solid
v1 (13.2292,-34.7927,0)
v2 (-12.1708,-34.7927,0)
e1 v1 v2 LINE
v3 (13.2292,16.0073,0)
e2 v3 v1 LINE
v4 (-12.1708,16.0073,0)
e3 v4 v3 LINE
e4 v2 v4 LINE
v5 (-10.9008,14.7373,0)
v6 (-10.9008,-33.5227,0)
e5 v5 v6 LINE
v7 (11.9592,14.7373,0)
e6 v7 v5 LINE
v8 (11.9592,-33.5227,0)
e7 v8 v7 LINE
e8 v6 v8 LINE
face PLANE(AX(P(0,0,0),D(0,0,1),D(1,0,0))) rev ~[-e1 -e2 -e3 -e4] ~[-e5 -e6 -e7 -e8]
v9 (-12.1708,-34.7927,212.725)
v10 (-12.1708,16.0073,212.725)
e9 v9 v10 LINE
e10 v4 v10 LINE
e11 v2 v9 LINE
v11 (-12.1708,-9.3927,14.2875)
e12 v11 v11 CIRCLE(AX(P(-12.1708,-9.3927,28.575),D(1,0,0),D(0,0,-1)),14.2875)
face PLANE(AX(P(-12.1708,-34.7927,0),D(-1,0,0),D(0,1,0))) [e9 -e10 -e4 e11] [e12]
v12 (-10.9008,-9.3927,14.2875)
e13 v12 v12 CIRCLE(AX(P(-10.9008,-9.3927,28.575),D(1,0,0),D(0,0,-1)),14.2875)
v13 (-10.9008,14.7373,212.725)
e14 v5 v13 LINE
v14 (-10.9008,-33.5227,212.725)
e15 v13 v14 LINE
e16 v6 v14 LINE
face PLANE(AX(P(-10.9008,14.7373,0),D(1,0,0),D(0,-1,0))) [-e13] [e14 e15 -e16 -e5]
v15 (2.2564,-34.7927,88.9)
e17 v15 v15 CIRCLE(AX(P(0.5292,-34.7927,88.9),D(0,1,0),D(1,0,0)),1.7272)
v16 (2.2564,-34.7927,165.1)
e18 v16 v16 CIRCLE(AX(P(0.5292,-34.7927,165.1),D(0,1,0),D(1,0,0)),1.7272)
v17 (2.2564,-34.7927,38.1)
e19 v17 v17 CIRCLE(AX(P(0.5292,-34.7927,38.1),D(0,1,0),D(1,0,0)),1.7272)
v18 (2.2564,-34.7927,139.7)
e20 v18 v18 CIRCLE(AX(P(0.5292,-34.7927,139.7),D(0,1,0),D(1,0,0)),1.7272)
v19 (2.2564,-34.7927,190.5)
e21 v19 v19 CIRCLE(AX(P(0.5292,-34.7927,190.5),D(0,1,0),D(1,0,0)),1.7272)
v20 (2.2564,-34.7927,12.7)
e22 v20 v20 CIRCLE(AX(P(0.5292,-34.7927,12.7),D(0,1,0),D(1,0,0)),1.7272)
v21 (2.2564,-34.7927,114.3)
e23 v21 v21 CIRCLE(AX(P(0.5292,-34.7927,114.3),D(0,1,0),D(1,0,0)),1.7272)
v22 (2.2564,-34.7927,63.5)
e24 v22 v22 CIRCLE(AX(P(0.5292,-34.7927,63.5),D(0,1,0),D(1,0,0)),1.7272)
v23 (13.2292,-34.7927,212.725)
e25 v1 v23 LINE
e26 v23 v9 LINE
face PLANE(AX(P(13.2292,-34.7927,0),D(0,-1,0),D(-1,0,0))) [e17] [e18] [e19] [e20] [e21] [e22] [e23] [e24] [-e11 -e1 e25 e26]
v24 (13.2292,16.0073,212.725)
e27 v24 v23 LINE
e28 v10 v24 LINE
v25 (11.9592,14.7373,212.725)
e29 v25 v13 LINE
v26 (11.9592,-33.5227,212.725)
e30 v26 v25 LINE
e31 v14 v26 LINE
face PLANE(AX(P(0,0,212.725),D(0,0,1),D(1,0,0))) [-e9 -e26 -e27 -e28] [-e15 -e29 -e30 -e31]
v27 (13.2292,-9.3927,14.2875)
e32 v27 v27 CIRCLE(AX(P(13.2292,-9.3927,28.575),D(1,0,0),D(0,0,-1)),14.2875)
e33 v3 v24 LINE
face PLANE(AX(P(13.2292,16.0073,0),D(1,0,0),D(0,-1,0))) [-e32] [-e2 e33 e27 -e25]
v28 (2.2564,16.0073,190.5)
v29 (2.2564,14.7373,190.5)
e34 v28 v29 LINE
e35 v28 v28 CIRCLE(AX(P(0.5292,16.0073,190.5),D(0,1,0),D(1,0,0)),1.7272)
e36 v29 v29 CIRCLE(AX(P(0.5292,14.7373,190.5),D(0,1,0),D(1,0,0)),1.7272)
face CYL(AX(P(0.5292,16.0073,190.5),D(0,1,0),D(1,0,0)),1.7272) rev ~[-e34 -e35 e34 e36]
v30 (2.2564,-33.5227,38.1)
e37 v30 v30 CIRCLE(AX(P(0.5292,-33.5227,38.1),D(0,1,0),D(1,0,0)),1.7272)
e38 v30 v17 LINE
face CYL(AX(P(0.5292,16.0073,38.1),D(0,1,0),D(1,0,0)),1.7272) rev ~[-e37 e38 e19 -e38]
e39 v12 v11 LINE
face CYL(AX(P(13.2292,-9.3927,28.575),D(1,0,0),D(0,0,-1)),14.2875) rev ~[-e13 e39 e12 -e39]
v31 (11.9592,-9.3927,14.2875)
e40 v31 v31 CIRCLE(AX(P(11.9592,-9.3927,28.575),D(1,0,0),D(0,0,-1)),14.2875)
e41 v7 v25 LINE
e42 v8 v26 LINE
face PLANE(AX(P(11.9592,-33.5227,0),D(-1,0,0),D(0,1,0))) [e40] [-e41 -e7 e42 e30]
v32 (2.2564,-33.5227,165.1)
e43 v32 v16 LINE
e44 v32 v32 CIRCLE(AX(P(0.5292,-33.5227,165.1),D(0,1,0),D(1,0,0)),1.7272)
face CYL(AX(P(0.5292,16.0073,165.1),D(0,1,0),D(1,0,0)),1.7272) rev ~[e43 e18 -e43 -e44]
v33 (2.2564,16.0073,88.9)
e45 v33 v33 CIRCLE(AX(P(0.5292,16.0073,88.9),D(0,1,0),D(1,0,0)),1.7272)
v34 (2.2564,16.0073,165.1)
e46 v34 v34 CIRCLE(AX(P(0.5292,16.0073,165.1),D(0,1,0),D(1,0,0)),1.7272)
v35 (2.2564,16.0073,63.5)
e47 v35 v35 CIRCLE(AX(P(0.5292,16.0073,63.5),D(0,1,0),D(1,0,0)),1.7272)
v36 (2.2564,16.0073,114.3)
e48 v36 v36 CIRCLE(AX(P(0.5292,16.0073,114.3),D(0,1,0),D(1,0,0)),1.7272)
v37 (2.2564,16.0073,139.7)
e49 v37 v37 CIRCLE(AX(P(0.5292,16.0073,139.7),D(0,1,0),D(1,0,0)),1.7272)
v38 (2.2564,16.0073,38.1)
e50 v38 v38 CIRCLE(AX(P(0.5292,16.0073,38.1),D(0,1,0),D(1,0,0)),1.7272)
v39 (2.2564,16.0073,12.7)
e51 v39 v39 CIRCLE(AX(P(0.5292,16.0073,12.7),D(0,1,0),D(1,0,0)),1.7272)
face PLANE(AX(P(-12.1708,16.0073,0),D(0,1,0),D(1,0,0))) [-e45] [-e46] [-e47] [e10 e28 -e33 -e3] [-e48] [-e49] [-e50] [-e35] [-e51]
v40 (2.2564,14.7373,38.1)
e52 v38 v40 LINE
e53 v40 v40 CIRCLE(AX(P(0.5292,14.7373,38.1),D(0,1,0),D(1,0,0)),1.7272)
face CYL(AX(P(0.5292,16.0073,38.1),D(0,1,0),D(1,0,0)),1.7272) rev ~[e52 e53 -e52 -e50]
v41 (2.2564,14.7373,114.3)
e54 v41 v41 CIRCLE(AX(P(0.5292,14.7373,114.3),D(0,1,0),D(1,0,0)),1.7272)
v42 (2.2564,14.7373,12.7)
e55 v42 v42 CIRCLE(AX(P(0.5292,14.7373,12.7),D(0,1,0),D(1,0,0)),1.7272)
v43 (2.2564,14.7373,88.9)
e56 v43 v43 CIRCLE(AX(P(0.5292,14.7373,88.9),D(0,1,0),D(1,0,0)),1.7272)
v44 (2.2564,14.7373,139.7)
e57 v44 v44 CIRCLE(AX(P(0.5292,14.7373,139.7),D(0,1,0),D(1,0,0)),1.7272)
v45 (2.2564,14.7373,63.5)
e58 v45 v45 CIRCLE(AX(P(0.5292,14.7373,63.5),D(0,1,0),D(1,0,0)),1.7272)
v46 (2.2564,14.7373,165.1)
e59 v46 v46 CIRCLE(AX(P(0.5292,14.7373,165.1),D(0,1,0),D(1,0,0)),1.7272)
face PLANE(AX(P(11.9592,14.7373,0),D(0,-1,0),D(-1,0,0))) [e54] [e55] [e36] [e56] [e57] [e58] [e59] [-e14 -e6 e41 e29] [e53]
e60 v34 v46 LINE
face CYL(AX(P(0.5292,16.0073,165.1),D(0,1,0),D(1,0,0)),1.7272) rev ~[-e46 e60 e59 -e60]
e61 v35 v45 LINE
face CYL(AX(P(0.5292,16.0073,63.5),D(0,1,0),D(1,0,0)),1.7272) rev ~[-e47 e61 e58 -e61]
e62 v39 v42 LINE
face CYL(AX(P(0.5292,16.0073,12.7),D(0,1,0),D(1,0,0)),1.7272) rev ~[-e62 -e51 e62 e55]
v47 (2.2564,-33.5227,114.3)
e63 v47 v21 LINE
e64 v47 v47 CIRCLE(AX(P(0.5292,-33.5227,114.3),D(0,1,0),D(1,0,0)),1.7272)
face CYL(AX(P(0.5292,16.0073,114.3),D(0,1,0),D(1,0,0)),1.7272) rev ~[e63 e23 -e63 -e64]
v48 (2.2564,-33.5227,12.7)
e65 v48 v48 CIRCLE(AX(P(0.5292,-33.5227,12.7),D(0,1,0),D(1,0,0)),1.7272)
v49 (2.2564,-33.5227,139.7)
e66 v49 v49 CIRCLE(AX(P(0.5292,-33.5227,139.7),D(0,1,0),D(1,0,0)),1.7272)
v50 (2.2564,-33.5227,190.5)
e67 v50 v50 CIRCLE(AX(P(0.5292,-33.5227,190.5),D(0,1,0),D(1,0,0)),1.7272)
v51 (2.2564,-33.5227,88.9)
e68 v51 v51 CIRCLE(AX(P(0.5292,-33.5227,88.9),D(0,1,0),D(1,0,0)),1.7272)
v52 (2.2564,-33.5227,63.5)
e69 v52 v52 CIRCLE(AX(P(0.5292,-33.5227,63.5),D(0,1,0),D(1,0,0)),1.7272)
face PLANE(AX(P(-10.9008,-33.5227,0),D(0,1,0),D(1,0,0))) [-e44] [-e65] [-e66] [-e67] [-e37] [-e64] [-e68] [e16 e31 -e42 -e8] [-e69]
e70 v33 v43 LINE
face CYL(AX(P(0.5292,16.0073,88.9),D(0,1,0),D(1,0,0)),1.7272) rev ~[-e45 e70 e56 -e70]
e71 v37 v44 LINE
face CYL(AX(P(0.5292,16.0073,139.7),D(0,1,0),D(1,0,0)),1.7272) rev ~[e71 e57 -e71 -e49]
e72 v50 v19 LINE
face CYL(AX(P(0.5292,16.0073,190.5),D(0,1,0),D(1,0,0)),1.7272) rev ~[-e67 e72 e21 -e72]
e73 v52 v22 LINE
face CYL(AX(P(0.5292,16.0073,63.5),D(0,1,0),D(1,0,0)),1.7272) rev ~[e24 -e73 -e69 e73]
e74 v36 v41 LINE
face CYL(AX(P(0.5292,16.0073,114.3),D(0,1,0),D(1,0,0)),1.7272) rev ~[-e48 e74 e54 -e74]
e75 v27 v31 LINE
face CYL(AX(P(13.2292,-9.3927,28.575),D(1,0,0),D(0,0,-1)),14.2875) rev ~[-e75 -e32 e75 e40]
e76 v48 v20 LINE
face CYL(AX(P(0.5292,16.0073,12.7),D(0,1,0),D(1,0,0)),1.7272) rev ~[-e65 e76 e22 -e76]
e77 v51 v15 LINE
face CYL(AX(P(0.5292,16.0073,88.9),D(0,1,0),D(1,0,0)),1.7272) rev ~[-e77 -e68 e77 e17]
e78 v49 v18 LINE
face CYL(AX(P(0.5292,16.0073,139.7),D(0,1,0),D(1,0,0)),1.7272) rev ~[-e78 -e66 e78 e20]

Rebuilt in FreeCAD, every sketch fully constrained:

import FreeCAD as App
import Part
import Sketcher

V = App.Vector
Q = App.Units.Quantity


def add_polygon(sketch, points):
    """Adds a closed chain of lines whose ends are joined by coincident constraints."""
    first, n = sketch.GeometryCount, len(points)
    for a, b in zip(points, points[1:] + points[:1]):
        sketch.addGeometry(Part.LineSegment(App.Vector(*a, 0), App.Vector(*b, 0)), False)
    for i in range(n):
        sketch.addConstraint(Sketcher.Constraint("Coincident", first + i, 2, first + (i + 1) % n, 1))

doc = App.newDocument("Part")
body = doc.addObject("PartDesign::Body", "Body")

# Sketch on XY plane
sketch1 = body.newObject("Sketcher::SketchObject", "Sketch")
sketch1.AttachmentSupport = (doc.getObject("XY_Plane"), [""])
sketch1.MapMode = "FlatFace"
add_polygon(sketch1, [(13, 16), (-12, 16), (-12, -35), (13, -35)])  # lines 0-3
add_polygon(sketch1, [(-11, 15), (12, 15), (12, -34), (-11, -34)])  # lines 4-7
sketch1.addConstraint([
    Sketcher.Constraint("Horizontal", 0),
    Sketcher.Constraint("Vertical", 1),
    Sketcher.Constraint("Horizontal", 2),
    Sketcher.Constraint("Vertical", 3),
    Sketcher.Constraint("Horizontal", 4),
    Sketcher.Constraint("Vertical", 5),
    Sketcher.Constraint("Horizontal", 6),
    Sketcher.Constraint("Vertical", 7),
    Sketcher.Constraint("DistanceX", 0, 2, 0, 1, Q("1 in")),
    Sketcher.Constraint("DistanceY", 1, 2, 1, 1, Q("2 in")),
    Sketcher.Constraint("DistanceX", 4, 2, 3, 2, Q("0.05 in")),
    Sketcher.Constraint("DistanceY", 4, 2, 3, 2, Q("0.05 in")),
    Sketcher.Constraint("DistanceY", 2, 2, 5, 2, Q("0.05 in")),
    Sketcher.Constraint("DistanceX", 1, 2, 6, 2, Q("0.05 in")),
    Sketcher.Constraint("DistanceY", -1, 1, 0, 2, Q("0.6302 in")),
    Sketcher.Constraint("DistanceX", 0, 2, -1, 1, 12.1708),
])
pad1 = body.newObject("PartDesign::Pad", "Pad")
pad1.Profile = sketch1
pad1.Length = Q("8.375 in")

# Sketch on XZ plane
sketch2 = body.newObject("Sketcher::SketchObject", "Sketch001")
sketch2.AttachmentSupport = (doc.getObject("XZ_Plane"), [""])
sketch2.MapMode = "FlatFace"
sketch2.AttachmentOffset = App.Placement(V(0, 0, -0.6302087 * 25.4), App.Rotation())
sketch2.addGeometry(Part.Circle(V(0.5, 12.7, 0), V(0, 0, 1), 1.7), False)
sketch2.addConstraint([
    Sketcher.Constraint("Diameter", 0, Q("0.136 in")),
    Sketcher.Constraint("DistanceY", -1, 1, 0, 3, Q("0.5 in")),
    Sketcher.Constraint("DistanceX", -1, 1, 0, 3, 0.5292),
])
pocket1 = body.newObject("PartDesign::Pocket", "Pocket")
pocket1.Profile = sketch2
pocket1.Type = "ThroughAll"
pocket1.Reversed = True
doc.recompute()

linearpattern = body.newObject("PartDesign::LinearPattern", "LinearPattern")
linearpattern.Originals = [pocket1]
linearpattern.Direction = (doc.getObject("Z_Axis"), [""])
linearpattern.Mode = "offset"
linearpattern.Offset = Q("1 in")
linearpattern.Occurrences = 21
body.Tip = linearpattern

# Sketch on YZ plane
sketch3 = body.newObject("Sketcher::SketchObject", "Sketch002")
sketch3.AttachmentSupport = (doc.getObject("YZ_Plane"), [""])
sketch3.MapMode = "FlatFace"
sketch3.AttachmentOffset = App.Placement(V(0, 0, 13.2292), App.Rotation())
sketch3.addGeometry(Part.Circle(V(-9, 29, 0), V(0, 0, 1), 14), False)
sketch3.addConstraint([
    Sketcher.Constraint("Diameter", 0, Q("1.125 in")),
    Sketcher.Constraint("DistanceY", -1, 1, 0, 3, Q("1.125 in")),
    Sketcher.Constraint("DistanceX", 0, 3, -1, 1, Q("0.3698 in")),
])
pocket2 = body.newObject("PartDesign::Pocket", "Pocket001")
pocket2.Profile = sketch3
pocket2.Type = "ThroughAll"

doc.recompute()
